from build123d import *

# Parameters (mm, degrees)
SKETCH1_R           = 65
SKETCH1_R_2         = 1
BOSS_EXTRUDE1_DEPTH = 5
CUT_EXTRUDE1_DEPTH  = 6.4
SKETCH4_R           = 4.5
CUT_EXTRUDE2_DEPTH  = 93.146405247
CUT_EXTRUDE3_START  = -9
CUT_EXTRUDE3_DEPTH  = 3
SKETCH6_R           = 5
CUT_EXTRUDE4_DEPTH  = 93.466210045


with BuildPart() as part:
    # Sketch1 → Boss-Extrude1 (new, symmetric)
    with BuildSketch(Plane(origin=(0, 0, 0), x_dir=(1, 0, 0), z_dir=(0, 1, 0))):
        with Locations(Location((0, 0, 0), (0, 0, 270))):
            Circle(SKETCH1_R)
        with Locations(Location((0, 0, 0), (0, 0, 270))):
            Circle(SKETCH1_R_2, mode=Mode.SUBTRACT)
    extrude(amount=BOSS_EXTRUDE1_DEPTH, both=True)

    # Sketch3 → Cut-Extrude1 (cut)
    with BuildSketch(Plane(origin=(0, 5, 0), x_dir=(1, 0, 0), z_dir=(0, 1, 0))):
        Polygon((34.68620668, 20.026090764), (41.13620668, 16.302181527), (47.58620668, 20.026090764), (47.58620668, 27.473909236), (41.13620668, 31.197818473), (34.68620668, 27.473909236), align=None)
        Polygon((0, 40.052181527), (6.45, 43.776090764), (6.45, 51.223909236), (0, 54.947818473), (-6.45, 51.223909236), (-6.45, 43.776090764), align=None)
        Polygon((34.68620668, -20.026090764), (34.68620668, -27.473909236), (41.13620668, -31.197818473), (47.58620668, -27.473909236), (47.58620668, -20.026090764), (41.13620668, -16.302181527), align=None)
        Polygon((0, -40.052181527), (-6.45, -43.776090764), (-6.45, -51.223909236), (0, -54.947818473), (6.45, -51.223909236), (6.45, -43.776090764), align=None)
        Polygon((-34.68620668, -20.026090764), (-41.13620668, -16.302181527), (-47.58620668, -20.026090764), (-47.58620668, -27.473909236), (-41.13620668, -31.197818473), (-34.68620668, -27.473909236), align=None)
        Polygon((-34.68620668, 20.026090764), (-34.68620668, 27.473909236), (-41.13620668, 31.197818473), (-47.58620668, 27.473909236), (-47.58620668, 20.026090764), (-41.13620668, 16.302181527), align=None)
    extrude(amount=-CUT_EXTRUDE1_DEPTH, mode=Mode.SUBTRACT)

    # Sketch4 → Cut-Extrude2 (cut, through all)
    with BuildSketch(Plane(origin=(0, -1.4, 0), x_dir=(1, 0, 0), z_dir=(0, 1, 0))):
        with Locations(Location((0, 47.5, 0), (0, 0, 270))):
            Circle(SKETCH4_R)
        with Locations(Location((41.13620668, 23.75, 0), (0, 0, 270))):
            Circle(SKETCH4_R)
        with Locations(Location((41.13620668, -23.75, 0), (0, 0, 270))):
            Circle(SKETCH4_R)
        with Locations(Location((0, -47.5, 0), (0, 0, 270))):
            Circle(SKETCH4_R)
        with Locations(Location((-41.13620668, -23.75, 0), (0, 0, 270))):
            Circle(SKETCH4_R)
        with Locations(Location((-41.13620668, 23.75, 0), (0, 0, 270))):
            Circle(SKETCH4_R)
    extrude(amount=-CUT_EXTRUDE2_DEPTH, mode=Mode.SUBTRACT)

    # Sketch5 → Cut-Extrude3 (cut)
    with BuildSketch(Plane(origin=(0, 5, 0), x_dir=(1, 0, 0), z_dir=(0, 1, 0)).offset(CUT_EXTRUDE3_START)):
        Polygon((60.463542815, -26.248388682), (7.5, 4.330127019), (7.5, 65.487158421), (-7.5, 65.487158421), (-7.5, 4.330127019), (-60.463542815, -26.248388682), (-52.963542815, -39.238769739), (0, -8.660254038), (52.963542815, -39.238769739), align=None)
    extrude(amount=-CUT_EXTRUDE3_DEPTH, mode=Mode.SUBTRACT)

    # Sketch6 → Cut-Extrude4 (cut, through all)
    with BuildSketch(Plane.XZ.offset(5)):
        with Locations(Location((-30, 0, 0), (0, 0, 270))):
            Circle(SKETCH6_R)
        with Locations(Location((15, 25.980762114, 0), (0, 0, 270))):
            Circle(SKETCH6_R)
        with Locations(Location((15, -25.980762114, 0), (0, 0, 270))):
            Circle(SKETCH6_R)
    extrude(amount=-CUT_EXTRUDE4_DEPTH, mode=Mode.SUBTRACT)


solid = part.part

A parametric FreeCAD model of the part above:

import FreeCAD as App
import Part
import Sketcher
from FreeCAD import Vector
Q = App.Units.Quantity

doc = App.newDocument("Part")
body = doc.addObject("PartDesign::Body", "Body")

# Sketch on XZ plane
sketch1 = body.newObject("Sketcher::SketchObject", "Sketch")
sketch1.AttachmentSupport = (doc.getObject("XZ_Plane"), [""])
sketch1.MapMode = "FlatFace"
sketch1.addGeometry([
    Part.Circle(Vector(0, 0, 0), Vector(0, 0, 1), 65),
    Part.Circle(Vector(0, 0, 0), Vector(0, 0, 1), 1),
], False)
sketch1.addConstraint([
    Sketcher.Constraint("Coincident", 0, 3, -1, 1),
    Sketcher.Constraint("Coincident", 1, 3, -1, 1),
    Sketcher.Constraint("Diameter", 0, Q("130 mm")),
    Sketcher.Constraint("Diameter", 1, Q("2 mm")),
])
pad1 = body.newObject("PartDesign::Pad", "Pad")
pad1.Profile = sketch1
pad1.Length = 10
pad1.Midplane = True

# Sketch on XZ plane
sketch2 = body.newObject("Sketcher::SketchObject", "Sketch001")
sketch2.AttachmentSupport = (doc.getObject("XZ_Plane"), [""])
sketch2.MapMode = "FlatFace"
sketch2.AttachmentOffset = App.Placement(Vector(0, 0, -5), App.Rotation())
sketch2.addGeometry([
    Part.LineSegment(Vector(35, -20, 0), Vector(41, -16, 0)),  # 0
    Part.LineSegment(Vector(41, -16, 0), Vector(48, -20, 0)),  # 1
    Part.LineSegment(Vector(48, -20, 0), Vector(48, -27, 0)),  # 2
    Part.LineSegment(Vector(48, -27, 0), Vector(41, -31, 0)),  # 3
    Part.LineSegment(Vector(41, -31, 0), Vector(35, -27, 0)),  # 4
    Part.LineSegment(Vector(35, -27, 0), Vector(35, -20, 0)),  # 5
    Part.LineSegment(Vector(0, -40, 0), Vector(6, -44, 0)),  # 6
    Part.LineSegment(Vector(6, -44, 0), Vector(6, -51, 0)),  # 7
    Part.LineSegment(Vector(6, -51, 0), Vector(0, -55, 0)),  # 8
    Part.LineSegment(Vector(0, -55, 0), Vector(-6, -51, 0)),  # 9
    Part.LineSegment(Vector(-6, -51, 0), Vector(-6, -44, 0)),  # 10
    Part.LineSegment(Vector(-6, -44, 0), Vector(0, -40, 0)),  # 11
    Part.LineSegment(Vector(35, 20, 0), Vector(35, 27, 0)),  # 12
    Part.LineSegment(Vector(35, 27, 0), Vector(41, 31, 0)),  # 13
    Part.LineSegment(Vector(41, 31, 0), Vector(48, 27, 0)),  # 14
    Part.LineSegment(Vector(48, 27, 0), Vector(48, 20, 0)),  # 15
    Part.LineSegment(Vector(48, 20, 0), Vector(41, 16, 0)),  # 16
    Part.LineSegment(Vector(41, 16, 0), Vector(35, 20, 0)),  # 17
    Part.LineSegment(Vector(0, 40, 0), Vector(-6, 44, 0)),  # 18
    Part.LineSegment(Vector(-6, 44, 0), Vector(-6, 51, 0)),  # 19
    Part.LineSegment(Vector(-6, 51, 0), Vector(0, 55, 0)),  # 20
    Part.LineSegment(Vector(0, 55, 0), Vector(6, 51, 0)),  # 21
    Part.LineSegment(Vector(6, 51, 0), Vector(6, 44, 0)),  # 22
    Part.LineSegment(Vector(6, 44, 0), Vector(0, 40, 0)),  # 23
    Part.LineSegment(Vector(-35, 20, 0), Vector(-41, 16, 0)),  # 24
    Part.LineSegment(Vector(-41, 16, 0), Vector(-48, 20, 0)),  # 25
    Part.LineSegment(Vector(-48, 20, 0), Vector(-48, 27, 0)),  # 26
    Part.LineSegment(Vector(-48, 27, 0), Vector(-41, 31, 0)),  # 27
    Part.LineSegment(Vector(-41, 31, 0), Vector(-35, 27, 0)),  # 28
    Part.LineSegment(Vector(-35, 27, 0), Vector(-35, 20, 0)),  # 29
    Part.LineSegment(Vector(-35, -20, 0), Vector(-35, -27, 0)),  # 30
    Part.LineSegment(Vector(-35, -27, 0), Vector(-41, -31, 0)),  # 31
    Part.LineSegment(Vector(-41, -31, 0), Vector(-48, -27, 0)),  # 32
    Part.LineSegment(Vector(-48, -27, 0), Vector(-48, -20, 0)),  # 33
    Part.LineSegment(Vector(-48, -20, 0), Vector(-41, -16, 0)),  # 34
    Part.LineSegment(Vector(-41, -16, 0), Vector(-35, -20, 0)),  # 35
], False)
sketch2.addConstraint([
    Sketcher.Constraint("Coincident", 0, 2, 1, 1),
    Sketcher.Constraint("Coincident", 1, 2, 2, 1),
    Sketcher.Constraint("Coincident", 2, 2, 3, 1),
    Sketcher.Constraint("Coincident", 3, 2, 4, 1),
    Sketcher.Constraint("Coincident", 4, 2, 5, 1),
    Sketcher.Constraint("Coincident", 5, 2, 0, 1),
    Sketcher.Constraint("Coincident", 6, 2, 7, 1),
    Sketcher.Constraint("Coincident", 7, 2, 8, 1),
    Sketcher.Constraint("Coincident", 8, 2, 9, 1),
    Sketcher.Constraint("Coincident", 9, 2, 10, 1),
    Sketcher.Constraint("Coincident", 10, 2, 11, 1),
    Sketcher.Constraint("Coincident", 11, 2, 6, 1),
    Sketcher.Constraint("Coincident", 12, 2, 13, 1),
    Sketcher.Constraint("Coincident", 13, 2, 14, 1),
    Sketcher.Constraint("Coincident", 14, 2, 15, 1),
    Sketcher.Constraint("Coincident", 15, 2, 16, 1),
    Sketcher.Constraint("Coincident", 16, 2, 17, 1),
    Sketcher.Constraint("Coincident", 17, 2, 12, 1),
    Sketcher.Constraint("Coincident", 18, 2, 19, 1),
    Sketcher.Constraint("Coincident", 19, 2, 20, 1),
    Sketcher.Constraint("Coincident", 20, 2, 21, 1),
    Sketcher.Constraint("Coincident", 21, 2, 22, 1),
    Sketcher.Constraint("Coincident", 22, 2, 23, 1),
    Sketcher.Constraint("Coincident", 23, 2, 18, 1),
    Sketcher.Constraint("Coincident", 24, 2, 25, 1),
    Sketcher.Constraint("Coincident", 25, 2, 26, 1),
    Sketcher.Constraint("Coincident", 26, 2, 27, 1),
    Sketcher.Constraint("Coincident", 27, 2, 28, 1),
    Sketcher.Constraint("Coincident", 28, 2, 29, 1),
    Sketcher.Constraint("Coincident", 29, 2, 24, 1),
    Sketcher.Constraint("Coincident", 30, 2, 31, 1),
    Sketcher.Constraint("Coincident", 31, 2, 32, 1),
    Sketcher.Constraint("Coincident", 32, 2, 33, 1),
    Sketcher.Constraint("Coincident", 33, 2, 34, 1),
    Sketcher.Constraint("Coincident", 34, 2, 35, 1),
    Sketcher.Constraint("Coincident", 35, 2, 30, 1),
    Sketcher.Constraint("Vertical", 2),
    Sketcher.Constraint("Vertical", 5),
    Sketcher.Constraint("Vertical", 7),
    Sketcher.Constraint("Vertical", 10),
    Sketcher.Constraint("Vertical", 12),
    Sketcher.Constraint("Vertical", 15),
    Sketcher.Constraint("Vertical", 19),
    Sketcher.Constraint("Vertical", 22),
    Sketcher.Constraint("Vertical", 26),
    Sketcher.Constraint("Vertical", 29),
    Sketcher.Constraint("Vertical", 30),
    Sketcher.Constraint("Vertical", 33),
    Sketcher.Constraint("Symmetric", 6, 2, 18, 2, -1, 1),
    Sketcher.Constraint("Symmetric", 8, 2, 20, 2, -1, 1),
    Sketcher.Constraint("Symmetric", 9, 2, 21, 2, -1, 1),
    Sketcher.Constraint("Symmetric", 11, 2, 23, 2, -1, 1),
    Sketcher.Constraint("Symmetric", 0, 2, 24, 2, -1, 1),
    Sketcher.Constraint("Symmetric", 1, 2, 25, 2, -1, 1),
    Sketcher.Constraint("Symmetric", 3, 2, 27, 2, -1, 1),
    Sketcher.Constraint("Symmetric", 4, 2, 28, 2, -1, 1),
    Sketcher.Constraint("Symmetric", 12, 2, 30, 2, -1, 1),
    Sketcher.Constraint("Symmetric", 13, 2, 31, 2, -1, 1),
    Sketcher.Constraint("Symmetric", 14, 2, 32, 2, -1, 1),
    Sketcher.Constraint("Symmetric", 16, 2, 34, 2, -1, 1),
    Sketcher.Constraint("Symmetric", 7, 2, 9, 2, -2),
    Sketcher.Constraint("Symmetric", 16, 2, 24, 2, -2),
    Sketcher.Constraint("Symmetric", 15, 2, 25, 2, -2),
    Sketcher.Constraint("Symmetric", 13, 2, 27, 2, -2),
    Sketcher.Constraint("Symmetric", 12, 2, 28, 2, -2),
    Sketcher.Constraint("PointOnObject", 8, 2, -2),
    Sketcher.Constraint("PointOnObject", 11, 2, -2),
    Sketcher.Constraint("Parallel", 0, 3),
    Sketcher.Constraint("Parallel", 1, 4),
    Sketcher.Constraint("Parallel", 4, 6),
    Sketcher.Constraint("Parallel", 3, 8),
    Sketcher.Constraint("Parallel", 6, 9),
    Sketcher.Constraint("Parallel", 8, 11),
    Sketcher.Constraint("Parallel", 9, 14),
    Sketcher.Constraint("Parallel", 14, 17),
    Sketcher.Constraint("Parallel", 16, 20),
    Sketcher.Constraint("Parallel", 20, 23),
    Sketcher.Constraint("Parallel", 23, 24),
    Sketcher.Constraint("Parallel", 24, 27),
    Sketcher.Constraint("Parallel", 31, 34),
    Sketcher.Constraint("Parallel", 32, 35),
    Sketcher.Constraint("Horizontal", 2, 2, 4, 2),
    Sketcher.Constraint("Horizontal", 1, 2, 5, 2),
    Sketcher.Constraint("Equal", 5, 7),
    Sketcher.Constraint("Equal", 4, 6),
    Sketcher.Constraint("Angle", 0, Q("30 deg")),
    Sketcher.Constraint("DistanceX", 4, 2, 2, 2, Q("12.9 mm")),
    Sketcher.Constraint("DistanceY", 5, 2, 12, 2, Q("47.5 mm")),
    Sketcher.Constraint("DistanceY", 6, 2, 5, 2, Q("23.75 mm")),
    Sketcher.Constraint("DistanceY", 2, 2, 2, 1, Q("7.447818 mm")),
    Sketcher.Constraint("DistanceX", -1, 1, 0, 2, Q("41.136207 mm")),
])
pocket1 = body.newObject("PartDesign::Pocket", "Pocket")
pocket1.Profile = sketch2
pocket1.Length = 6.4
pocket1.Reversed = True

# Sketch on XZ plane
sketch3 = body.newObject("Sketcher::SketchObject", "Sketch002")
sketch3.AttachmentSupport = (doc.getObject("XZ_Plane"), [""])
sketch3.MapMode = "FlatFace"
sketch3.AttachmentOffset = App.Placement(Vector(0, 0, 1.4), App.Rotation())
sketch3.addGeometry([
    Part.Circle(Vector(0, -47.5, 0), Vector(0, 0, 1), 4.5),  # 0
    Part.Circle(Vector(41.1, -23.8, 0), Vector(0, 0, 1), 4.5),  # 1
    Part.Circle(Vector(41.1, 23.8, 0), Vector(0, 0, 1), 4.5),  # 2
    Part.Circle(Vector(0, 47.5, 0), Vector(0, 0, 1), 4.5),  # 3
    Part.Circle(Vector(-41.1, 23.8, 0), Vector(0, 0, 1), 4.5),  # 4
    Part.Circle(Vector(-41.1, -23.8, 0), Vector(0, 0, 1), 4.5),  # 5
], False)
sketch3.addConstraint([
    Sketcher.Constraint("Equal", 0, 1),
    Sketcher.Constraint("Equal", 1, 2),
    Sketcher.Constraint("Equal", 2, 3),
    Sketcher.Constraint("Equal", 3, 4),
    Sketcher.Constraint("Equal", 4, 5),
    Sketcher.Constraint("Symmetric", 0, 3, 3, 3, -1, 1),
    Sketcher.Constraint("Symmetric", 1, 3, 4, 3, -1, 1),
    Sketcher.Constraint("Symmetric", 2, 3, 5, 3, -1, 1),
    Sketcher.Constraint("Symmetric", 2, 3, 4, 3, -2),
    Sketcher.Constraint("PointOnObject", 0, 3, -2),
    Sketcher.Constraint("Diameter", 0, Q("9 mm")),
    Sketcher.Constraint("DistanceY", 0, 3, 3, 3, Q("95 mm")),
    Sketcher.Constraint("DistanceY", 1, 3, 2, 3, Q("47.5 mm")),
    Sketcher.Constraint("DistanceX", -1, 1, 1, 3, Q("41.136207 mm")),
])
pocket2 = body.newObject("PartDesign::Pocket", "Pocket001")
pocket2.Profile = sketch3
pocket2.Type = "ThroughAll"
pocket2.Reversed = True

# Sketch on XZ plane
sketch4 = body.newObject("Sketcher::SketchObject", "Sketch003")
sketch4.AttachmentSupport = (doc.getObject("XZ_Plane"), [""])
sketch4.MapMode = "FlatFace"
sketch4.AttachmentOffset = App.Placement(Vector(0, 0, 4), App.Rotation())
sketch4.addGeometry([
    Part.LineSegment(Vector(60, 26, 0), Vector(8, -4, 0)),  # 0
    Part.LineSegment(Vector(8, -4, 0), Vector(8, -65, 0)),  # 1
    Part.LineSegment(Vector(8, -65, 0), Vector(-8, -65, 0)),  # 2
    Part.LineSegment(Vector(-8, -65, 0), Vector(-8, -4, 0)),  # 3
    Part.LineSegment(Vector(-8, -4, 0), Vector(-60, 26, 0)),  # 4
    Part.LineSegment(Vector(-60, 26, 0), Vector(-53, 39, 0)),  # 5
    Part.LineSegment(Vector(-53, 39, 0), Vector(0, 9, 0)),  # 6
    Part.LineSegment(Vector(0, 9, 0), Vector(53, 39, 0)),  # 7
    Part.LineSegment(Vector(53, 39, 0), Vector(60, 26, 0)),  # 8
], False)
sketch4.addConstraint([
    Sketcher.Constraint("Coincident", 0, 2, 1, 1),
    Sketcher.Constraint("Coincident", 1, 2, 2, 1),
    Sketcher.Constraint("Coincident", 2, 2, 3, 1),
    Sketcher.Constraint("Coincident", 3, 2, 4, 1),
    Sketcher.Constraint("Coincident", 4, 2, 5, 1),
    Sketcher.Constraint("Coincident", 5, 2, 6, 1),
    Sketcher.Constraint("Coincident", 6, 2, 7, 1),
    Sketcher.Constraint("Coincident", 7, 2, 8, 1),
    Sketcher.Constraint("Coincident", 8, 2, 0, 1),
    Sketcher.Constraint("Vertical", 1),
    Sketcher.Constraint("Horizontal", 2),
    Sketcher.Constraint("Vertical", 3),
    Sketcher.Constraint("Symmetric", 0, 2, 3, 2, -2),
    Sketcher.Constraint("Symmetric", 5, 2, 7, 2, -2),
    Sketcher.Constraint("Symmetric", 4, 2, 8, 2, -2),
    Sketcher.Constraint("PointOnObject", 6, 2, -2),
    Sketcher.Constraint("Perpendicular", 4, 5),
    Sketcher.Constraint("Perpendicular", 5, 6),
    Sketcher.Constraint("Equal", 4, 6),
    Sketcher.Constraint("DistanceX", 2, 2, 2, 1, Q("15 mm")),
    Sketcher.Constraint("Angle", 0, Q("-150 deg")),
    Sketcher.Constraint("DistanceY", 1, 2, 1, 1, Q("61.157031 mm")),
    Sketcher.Constraint("Distance", 0, Q("61.157031 mm")),
    Sketcher.Constraint("DistanceY", 1, 2, -1, 1, Q("65.487158 mm")),
])
pocket3 = body.newObject("PartDesign::Pocket", "Pocket002")
pocket3.Profile = sketch4
pocket3.Length = 3
pocket3.Reversed = True

# Sketch on XZ plane
sketch5 = body.newObject("Sketcher::SketchObject", "Sketch004")
sketch5.AttachmentSupport = (doc.getObject("XZ_Plane"), [""])
sketch5.MapMode = "FlatFace"
sketch5.AttachmentOffset = App.Placement(Vector(0, 0, 5), App.Rotation())
sketch5.addGeometry([
    Part.Circle(Vector(-30, 0, 0), Vector(0, 0, 1), 5),
    Part.Circle(Vector(15, 26, 0), Vector(0, 0, 1), 5),
    Part.Circle(Vector(15, -26, 0), Vector(0, 0, 1), 5),
], False)
sketch5.addConstraint([
    Sketcher.Constraint("Equal", 0, 1),
    Sketcher.Constraint("Equal", 1, 2),
    Sketcher.Constraint("Symmetric", 1, 3, 2, 3, -1),
    Sketcher.Constraint("PointOnObject", 0, 3, -1),
    Sketcher.Constraint("Diameter", 0, Q("10 mm")),
    Sketcher.Constraint("DistanceX", 0, 3, -1, 1, Q("30 mm")),
    Sketcher.Constraint("DistanceX", -1, 1, 1, 3, Q("15 mm")),
    Sketcher.Constraint("DistanceY", -1, 1, 1, 3, Q("25.980762 mm")),
])
pocket4 = body.newObject("PartDesign::Pocket", "Pocket003")
pocket4.Profile = sketch5
pocket4.Type = "ThroughAll"

doc.recompute()
